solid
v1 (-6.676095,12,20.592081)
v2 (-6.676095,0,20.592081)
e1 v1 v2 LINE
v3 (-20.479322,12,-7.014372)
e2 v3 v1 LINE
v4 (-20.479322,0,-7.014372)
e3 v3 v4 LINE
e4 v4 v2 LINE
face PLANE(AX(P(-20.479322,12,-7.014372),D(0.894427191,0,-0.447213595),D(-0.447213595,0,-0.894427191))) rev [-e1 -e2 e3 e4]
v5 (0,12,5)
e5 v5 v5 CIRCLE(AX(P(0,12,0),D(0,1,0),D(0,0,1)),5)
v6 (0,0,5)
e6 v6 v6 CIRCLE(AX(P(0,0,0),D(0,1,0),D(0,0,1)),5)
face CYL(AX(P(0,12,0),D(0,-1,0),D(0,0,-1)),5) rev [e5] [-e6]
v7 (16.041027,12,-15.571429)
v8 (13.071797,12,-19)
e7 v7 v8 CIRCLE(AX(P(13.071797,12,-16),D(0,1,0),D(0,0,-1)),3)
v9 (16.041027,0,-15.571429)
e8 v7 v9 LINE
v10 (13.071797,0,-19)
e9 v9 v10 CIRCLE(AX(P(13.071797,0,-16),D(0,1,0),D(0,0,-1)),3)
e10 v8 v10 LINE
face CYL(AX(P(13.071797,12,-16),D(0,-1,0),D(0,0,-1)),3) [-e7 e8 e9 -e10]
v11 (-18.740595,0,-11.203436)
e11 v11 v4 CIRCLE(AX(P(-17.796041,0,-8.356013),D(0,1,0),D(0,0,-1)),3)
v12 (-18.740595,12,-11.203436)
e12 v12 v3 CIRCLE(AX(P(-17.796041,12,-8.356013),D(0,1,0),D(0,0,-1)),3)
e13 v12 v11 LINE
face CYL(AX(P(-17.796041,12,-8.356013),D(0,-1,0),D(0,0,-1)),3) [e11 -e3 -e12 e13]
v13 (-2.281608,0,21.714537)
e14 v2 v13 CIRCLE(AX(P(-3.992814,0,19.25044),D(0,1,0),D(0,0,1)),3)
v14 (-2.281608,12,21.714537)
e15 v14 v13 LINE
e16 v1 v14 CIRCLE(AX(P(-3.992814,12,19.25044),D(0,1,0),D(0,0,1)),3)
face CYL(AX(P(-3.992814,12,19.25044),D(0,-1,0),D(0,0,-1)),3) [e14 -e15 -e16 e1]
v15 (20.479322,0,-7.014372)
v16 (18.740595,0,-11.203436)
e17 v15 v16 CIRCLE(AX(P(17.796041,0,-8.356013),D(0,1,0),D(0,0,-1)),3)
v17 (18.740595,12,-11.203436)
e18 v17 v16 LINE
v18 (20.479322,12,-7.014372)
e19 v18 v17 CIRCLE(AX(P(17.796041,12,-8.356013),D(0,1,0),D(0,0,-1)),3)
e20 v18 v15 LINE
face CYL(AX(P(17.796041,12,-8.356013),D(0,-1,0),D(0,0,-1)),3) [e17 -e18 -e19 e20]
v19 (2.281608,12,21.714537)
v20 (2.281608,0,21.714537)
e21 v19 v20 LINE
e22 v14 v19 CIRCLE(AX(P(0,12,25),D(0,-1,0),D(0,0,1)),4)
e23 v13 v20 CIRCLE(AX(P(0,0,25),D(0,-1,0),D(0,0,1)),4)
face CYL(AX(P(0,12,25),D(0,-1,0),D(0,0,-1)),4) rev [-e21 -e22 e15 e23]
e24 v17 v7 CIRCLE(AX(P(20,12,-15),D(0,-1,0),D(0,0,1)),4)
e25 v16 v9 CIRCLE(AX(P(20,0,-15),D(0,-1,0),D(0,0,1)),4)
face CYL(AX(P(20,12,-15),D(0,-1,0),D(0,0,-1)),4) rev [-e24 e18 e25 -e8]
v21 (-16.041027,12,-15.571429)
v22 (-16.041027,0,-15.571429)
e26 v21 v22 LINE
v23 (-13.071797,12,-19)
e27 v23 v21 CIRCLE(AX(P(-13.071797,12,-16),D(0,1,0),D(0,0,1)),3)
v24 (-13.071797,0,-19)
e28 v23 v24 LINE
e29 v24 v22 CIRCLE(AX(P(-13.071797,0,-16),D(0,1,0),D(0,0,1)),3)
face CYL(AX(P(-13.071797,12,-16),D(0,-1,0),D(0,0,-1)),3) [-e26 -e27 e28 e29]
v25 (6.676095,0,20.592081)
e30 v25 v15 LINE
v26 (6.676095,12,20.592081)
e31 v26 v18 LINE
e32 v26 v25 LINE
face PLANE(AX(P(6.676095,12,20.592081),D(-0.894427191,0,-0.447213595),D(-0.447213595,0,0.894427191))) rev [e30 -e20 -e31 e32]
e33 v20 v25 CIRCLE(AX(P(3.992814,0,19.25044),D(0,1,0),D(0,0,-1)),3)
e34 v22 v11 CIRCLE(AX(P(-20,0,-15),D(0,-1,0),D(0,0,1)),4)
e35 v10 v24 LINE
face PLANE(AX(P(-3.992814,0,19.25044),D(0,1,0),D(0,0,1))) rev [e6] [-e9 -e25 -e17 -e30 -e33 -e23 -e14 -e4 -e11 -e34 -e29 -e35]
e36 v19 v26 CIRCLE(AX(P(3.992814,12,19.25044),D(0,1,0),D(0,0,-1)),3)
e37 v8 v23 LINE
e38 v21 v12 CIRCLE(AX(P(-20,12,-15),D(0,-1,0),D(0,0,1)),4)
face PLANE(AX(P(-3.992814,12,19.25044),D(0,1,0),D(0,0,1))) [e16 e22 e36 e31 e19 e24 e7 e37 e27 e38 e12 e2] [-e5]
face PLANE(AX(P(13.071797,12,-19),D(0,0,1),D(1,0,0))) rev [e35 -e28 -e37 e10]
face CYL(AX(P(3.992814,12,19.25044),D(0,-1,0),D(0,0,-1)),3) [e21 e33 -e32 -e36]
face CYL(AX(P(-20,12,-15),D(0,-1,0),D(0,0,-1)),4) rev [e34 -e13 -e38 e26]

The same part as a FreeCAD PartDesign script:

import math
import FreeCAD as App
import Part
import Sketcher

V = App.Vector

doc = App.newDocument("Part")
params = doc.addObject("Spreadsheet::Sheet", "Params")
for row, (alias, value) in enumerate([
    ("sketch1_diameter", "10 mm"),
    ("sketch1_radius", "3 mm"),
    ("sketch1_radius2", "4 mm"),
    ("pad1_length", "12 mm"),
], start=1):
    params.set(f"A{row}", alias)
    params.set(f"B{row}", "=" + value)
    params.setAlias(f"B{row}", alias)

body = doc.addObject("PartDesign::Body", "Body")

sketch1 = body.newObject("Sketcher::SketchObject", "Sketch")
sketch1.AttachmentSupport = (doc.getObject("XZ_Plane"), [""])
sketch1.MapMode = "FlatFace"
sketch1.addGeometry([
    Part.LineSegment(V(-20.479322, -7.014372, 0), V(-6.676095, 20.592081, 0)),
    Part.ArcOfCircle(Part.Circle(V(-3.992814, 19.25044, 0), V(0, 0, 1), 3), math.radians(55.221738), math.radians(153.434949)),
    Part.ArcOfCircle(Part.Circle(V(0, 25, 0), V(0, 0, 1), 4), math.radians(-124.778262), math.radians(-55.221738)),
    Part.ArcOfCircle(Part.Circle(V(3.992814, 19.25044, 0), V(0, 0, 1), 3), math.radians(26.565051), math.radians(124.778262)),
    Part.LineSegment(V(6.676095, 20.592081, 0), V(20.479322, -7.014372, 0)),
    Part.ArcOfCircle(Part.Circle(V(17.796041, -8.356013, 0), V(0, 0, 1), 3), math.radians(-71.64816), math.radians(26.565051)),
    Part.ArcOfCircle(Part.Circle(V(20, -15, 0), V(0, 0, 1), 4), math.radians(108.351841), math.radians(188.213211)),
    Part.ArcOfCircle(Part.Circle(V(13.071797, -16, 0), V(0, 0, 1), 3), math.radians(-90), math.radians(8.213211)),
    Part.LineSegment(V(13.071797, -19, 0), V(-13.071797, -19, 0)),
    Part.ArcOfCircle(Part.Circle(V(-13.071797, -16, 0), V(0, 0, 1), 3), math.radians(171.786789), math.radians(270)),
    Part.ArcOfCircle(Part.Circle(V(-20, -15, 0), V(0, 0, 1), 4), math.radians(-8.213211), math.radians(71.648159)),
    Part.ArcOfCircle(Part.Circle(V(-17.796041, -8.356013, 0), V(0, 0, 1), 3), math.radians(153.434949), math.radians(251.64816)),
    Part.Circle(V(0, 0, 0), V(0, 0, 1), 5),
], False)
sketch1.addConstraint([
    Sketcher.Constraint("Tangent", 0, 2, 1, 2),
    Sketcher.Constraint("Tangent", 1, 1, 2, 1),
    Sketcher.Constraint("Tangent", 2, 2, 3, 2),
    Sketcher.Constraint("Tangent", 3, 1, 4, 1),
    Sketcher.Constraint("Tangent", 4, 2, 5, 2),
    Sketcher.Constraint("Tangent", 5, 1, 6, 1),
    Sketcher.Constraint("Tangent", 6, 2, 7, 2),
    Sketcher.Constraint("Tangent", 7, 1, 8, 1),
    Sketcher.Constraint("Tangent", 8, 2, 9, 2),
    Sketcher.Constraint("Tangent", 9, 1, 10, 1),
    Sketcher.Constraint("Tangent", 10, 2, 11, 2),
    Sketcher.Constraint("Tangent", 11, 1, 0, 1),
    Sketcher.Constraint("Horizontal", 8),
    Sketcher.Constraint("Coincident", 12, 3, -1, 1),
    Sketcher.Constraint("Equal", 1, 3),
    Sketcher.Constraint("Equal", 3, 5),
    Sketcher.Constraint("Equal", 2, 6),
    Sketcher.Constraint("Equal", 5, 7),
    Sketcher.Constraint("Equal", 7, 9),
    Sketcher.Constraint("Equal", 6, 10),
    Sketcher.Constraint("Equal", 9, 11),
    Sketcher.Constraint("Symmetric", 1, 3, 3, 3, -2),
    Sketcher.Constraint("Symmetric", 6, 3, 10, 3, -2),
    Sketcher.Constraint("Horizontal", 5, 3, 11, 3),
    Sketcher.Constraint("Diameter", 12, 10.0),
    Sketcher.Constraint("Radius", 1, 3.0),
    Sketcher.Constraint("Radius", 2, 4.0),
    Sketcher.Constraint("DistanceY", -1, 1, 2, 3, 25.0),
    Sketcher.Constraint("DistanceX", -1, 1, 6, 3, 20.0),
    Sketcher.Constraint("DistanceY", 6, 3, -1, 1, 15.0),
    Sketcher.Constraint("DistanceY", 7, 3, -1, 1, 16.0),
    Sketcher.Constraint("DistanceY", -1, 1, 1, 3, 19.25044),
    Sketcher.Constraint("DistanceX", -1, 1, 5, 3, 17.796041),
])
sketch1.setExpression("Constraints[24]", "Params.sketch1_diameter")
sketch1.setExpression("Constraints[25]", "Params.sketch1_radius")
sketch1.setExpression("Constraints[26]", "Params.sketch1_radius2")
pad1 = body.newObject("PartDesign::Pad", "Pad")
pad1.Profile = sketch1
pad1.setExpression("Length", "Params.pad1_length")
pad1.Reversed = True

doc.recompute()
